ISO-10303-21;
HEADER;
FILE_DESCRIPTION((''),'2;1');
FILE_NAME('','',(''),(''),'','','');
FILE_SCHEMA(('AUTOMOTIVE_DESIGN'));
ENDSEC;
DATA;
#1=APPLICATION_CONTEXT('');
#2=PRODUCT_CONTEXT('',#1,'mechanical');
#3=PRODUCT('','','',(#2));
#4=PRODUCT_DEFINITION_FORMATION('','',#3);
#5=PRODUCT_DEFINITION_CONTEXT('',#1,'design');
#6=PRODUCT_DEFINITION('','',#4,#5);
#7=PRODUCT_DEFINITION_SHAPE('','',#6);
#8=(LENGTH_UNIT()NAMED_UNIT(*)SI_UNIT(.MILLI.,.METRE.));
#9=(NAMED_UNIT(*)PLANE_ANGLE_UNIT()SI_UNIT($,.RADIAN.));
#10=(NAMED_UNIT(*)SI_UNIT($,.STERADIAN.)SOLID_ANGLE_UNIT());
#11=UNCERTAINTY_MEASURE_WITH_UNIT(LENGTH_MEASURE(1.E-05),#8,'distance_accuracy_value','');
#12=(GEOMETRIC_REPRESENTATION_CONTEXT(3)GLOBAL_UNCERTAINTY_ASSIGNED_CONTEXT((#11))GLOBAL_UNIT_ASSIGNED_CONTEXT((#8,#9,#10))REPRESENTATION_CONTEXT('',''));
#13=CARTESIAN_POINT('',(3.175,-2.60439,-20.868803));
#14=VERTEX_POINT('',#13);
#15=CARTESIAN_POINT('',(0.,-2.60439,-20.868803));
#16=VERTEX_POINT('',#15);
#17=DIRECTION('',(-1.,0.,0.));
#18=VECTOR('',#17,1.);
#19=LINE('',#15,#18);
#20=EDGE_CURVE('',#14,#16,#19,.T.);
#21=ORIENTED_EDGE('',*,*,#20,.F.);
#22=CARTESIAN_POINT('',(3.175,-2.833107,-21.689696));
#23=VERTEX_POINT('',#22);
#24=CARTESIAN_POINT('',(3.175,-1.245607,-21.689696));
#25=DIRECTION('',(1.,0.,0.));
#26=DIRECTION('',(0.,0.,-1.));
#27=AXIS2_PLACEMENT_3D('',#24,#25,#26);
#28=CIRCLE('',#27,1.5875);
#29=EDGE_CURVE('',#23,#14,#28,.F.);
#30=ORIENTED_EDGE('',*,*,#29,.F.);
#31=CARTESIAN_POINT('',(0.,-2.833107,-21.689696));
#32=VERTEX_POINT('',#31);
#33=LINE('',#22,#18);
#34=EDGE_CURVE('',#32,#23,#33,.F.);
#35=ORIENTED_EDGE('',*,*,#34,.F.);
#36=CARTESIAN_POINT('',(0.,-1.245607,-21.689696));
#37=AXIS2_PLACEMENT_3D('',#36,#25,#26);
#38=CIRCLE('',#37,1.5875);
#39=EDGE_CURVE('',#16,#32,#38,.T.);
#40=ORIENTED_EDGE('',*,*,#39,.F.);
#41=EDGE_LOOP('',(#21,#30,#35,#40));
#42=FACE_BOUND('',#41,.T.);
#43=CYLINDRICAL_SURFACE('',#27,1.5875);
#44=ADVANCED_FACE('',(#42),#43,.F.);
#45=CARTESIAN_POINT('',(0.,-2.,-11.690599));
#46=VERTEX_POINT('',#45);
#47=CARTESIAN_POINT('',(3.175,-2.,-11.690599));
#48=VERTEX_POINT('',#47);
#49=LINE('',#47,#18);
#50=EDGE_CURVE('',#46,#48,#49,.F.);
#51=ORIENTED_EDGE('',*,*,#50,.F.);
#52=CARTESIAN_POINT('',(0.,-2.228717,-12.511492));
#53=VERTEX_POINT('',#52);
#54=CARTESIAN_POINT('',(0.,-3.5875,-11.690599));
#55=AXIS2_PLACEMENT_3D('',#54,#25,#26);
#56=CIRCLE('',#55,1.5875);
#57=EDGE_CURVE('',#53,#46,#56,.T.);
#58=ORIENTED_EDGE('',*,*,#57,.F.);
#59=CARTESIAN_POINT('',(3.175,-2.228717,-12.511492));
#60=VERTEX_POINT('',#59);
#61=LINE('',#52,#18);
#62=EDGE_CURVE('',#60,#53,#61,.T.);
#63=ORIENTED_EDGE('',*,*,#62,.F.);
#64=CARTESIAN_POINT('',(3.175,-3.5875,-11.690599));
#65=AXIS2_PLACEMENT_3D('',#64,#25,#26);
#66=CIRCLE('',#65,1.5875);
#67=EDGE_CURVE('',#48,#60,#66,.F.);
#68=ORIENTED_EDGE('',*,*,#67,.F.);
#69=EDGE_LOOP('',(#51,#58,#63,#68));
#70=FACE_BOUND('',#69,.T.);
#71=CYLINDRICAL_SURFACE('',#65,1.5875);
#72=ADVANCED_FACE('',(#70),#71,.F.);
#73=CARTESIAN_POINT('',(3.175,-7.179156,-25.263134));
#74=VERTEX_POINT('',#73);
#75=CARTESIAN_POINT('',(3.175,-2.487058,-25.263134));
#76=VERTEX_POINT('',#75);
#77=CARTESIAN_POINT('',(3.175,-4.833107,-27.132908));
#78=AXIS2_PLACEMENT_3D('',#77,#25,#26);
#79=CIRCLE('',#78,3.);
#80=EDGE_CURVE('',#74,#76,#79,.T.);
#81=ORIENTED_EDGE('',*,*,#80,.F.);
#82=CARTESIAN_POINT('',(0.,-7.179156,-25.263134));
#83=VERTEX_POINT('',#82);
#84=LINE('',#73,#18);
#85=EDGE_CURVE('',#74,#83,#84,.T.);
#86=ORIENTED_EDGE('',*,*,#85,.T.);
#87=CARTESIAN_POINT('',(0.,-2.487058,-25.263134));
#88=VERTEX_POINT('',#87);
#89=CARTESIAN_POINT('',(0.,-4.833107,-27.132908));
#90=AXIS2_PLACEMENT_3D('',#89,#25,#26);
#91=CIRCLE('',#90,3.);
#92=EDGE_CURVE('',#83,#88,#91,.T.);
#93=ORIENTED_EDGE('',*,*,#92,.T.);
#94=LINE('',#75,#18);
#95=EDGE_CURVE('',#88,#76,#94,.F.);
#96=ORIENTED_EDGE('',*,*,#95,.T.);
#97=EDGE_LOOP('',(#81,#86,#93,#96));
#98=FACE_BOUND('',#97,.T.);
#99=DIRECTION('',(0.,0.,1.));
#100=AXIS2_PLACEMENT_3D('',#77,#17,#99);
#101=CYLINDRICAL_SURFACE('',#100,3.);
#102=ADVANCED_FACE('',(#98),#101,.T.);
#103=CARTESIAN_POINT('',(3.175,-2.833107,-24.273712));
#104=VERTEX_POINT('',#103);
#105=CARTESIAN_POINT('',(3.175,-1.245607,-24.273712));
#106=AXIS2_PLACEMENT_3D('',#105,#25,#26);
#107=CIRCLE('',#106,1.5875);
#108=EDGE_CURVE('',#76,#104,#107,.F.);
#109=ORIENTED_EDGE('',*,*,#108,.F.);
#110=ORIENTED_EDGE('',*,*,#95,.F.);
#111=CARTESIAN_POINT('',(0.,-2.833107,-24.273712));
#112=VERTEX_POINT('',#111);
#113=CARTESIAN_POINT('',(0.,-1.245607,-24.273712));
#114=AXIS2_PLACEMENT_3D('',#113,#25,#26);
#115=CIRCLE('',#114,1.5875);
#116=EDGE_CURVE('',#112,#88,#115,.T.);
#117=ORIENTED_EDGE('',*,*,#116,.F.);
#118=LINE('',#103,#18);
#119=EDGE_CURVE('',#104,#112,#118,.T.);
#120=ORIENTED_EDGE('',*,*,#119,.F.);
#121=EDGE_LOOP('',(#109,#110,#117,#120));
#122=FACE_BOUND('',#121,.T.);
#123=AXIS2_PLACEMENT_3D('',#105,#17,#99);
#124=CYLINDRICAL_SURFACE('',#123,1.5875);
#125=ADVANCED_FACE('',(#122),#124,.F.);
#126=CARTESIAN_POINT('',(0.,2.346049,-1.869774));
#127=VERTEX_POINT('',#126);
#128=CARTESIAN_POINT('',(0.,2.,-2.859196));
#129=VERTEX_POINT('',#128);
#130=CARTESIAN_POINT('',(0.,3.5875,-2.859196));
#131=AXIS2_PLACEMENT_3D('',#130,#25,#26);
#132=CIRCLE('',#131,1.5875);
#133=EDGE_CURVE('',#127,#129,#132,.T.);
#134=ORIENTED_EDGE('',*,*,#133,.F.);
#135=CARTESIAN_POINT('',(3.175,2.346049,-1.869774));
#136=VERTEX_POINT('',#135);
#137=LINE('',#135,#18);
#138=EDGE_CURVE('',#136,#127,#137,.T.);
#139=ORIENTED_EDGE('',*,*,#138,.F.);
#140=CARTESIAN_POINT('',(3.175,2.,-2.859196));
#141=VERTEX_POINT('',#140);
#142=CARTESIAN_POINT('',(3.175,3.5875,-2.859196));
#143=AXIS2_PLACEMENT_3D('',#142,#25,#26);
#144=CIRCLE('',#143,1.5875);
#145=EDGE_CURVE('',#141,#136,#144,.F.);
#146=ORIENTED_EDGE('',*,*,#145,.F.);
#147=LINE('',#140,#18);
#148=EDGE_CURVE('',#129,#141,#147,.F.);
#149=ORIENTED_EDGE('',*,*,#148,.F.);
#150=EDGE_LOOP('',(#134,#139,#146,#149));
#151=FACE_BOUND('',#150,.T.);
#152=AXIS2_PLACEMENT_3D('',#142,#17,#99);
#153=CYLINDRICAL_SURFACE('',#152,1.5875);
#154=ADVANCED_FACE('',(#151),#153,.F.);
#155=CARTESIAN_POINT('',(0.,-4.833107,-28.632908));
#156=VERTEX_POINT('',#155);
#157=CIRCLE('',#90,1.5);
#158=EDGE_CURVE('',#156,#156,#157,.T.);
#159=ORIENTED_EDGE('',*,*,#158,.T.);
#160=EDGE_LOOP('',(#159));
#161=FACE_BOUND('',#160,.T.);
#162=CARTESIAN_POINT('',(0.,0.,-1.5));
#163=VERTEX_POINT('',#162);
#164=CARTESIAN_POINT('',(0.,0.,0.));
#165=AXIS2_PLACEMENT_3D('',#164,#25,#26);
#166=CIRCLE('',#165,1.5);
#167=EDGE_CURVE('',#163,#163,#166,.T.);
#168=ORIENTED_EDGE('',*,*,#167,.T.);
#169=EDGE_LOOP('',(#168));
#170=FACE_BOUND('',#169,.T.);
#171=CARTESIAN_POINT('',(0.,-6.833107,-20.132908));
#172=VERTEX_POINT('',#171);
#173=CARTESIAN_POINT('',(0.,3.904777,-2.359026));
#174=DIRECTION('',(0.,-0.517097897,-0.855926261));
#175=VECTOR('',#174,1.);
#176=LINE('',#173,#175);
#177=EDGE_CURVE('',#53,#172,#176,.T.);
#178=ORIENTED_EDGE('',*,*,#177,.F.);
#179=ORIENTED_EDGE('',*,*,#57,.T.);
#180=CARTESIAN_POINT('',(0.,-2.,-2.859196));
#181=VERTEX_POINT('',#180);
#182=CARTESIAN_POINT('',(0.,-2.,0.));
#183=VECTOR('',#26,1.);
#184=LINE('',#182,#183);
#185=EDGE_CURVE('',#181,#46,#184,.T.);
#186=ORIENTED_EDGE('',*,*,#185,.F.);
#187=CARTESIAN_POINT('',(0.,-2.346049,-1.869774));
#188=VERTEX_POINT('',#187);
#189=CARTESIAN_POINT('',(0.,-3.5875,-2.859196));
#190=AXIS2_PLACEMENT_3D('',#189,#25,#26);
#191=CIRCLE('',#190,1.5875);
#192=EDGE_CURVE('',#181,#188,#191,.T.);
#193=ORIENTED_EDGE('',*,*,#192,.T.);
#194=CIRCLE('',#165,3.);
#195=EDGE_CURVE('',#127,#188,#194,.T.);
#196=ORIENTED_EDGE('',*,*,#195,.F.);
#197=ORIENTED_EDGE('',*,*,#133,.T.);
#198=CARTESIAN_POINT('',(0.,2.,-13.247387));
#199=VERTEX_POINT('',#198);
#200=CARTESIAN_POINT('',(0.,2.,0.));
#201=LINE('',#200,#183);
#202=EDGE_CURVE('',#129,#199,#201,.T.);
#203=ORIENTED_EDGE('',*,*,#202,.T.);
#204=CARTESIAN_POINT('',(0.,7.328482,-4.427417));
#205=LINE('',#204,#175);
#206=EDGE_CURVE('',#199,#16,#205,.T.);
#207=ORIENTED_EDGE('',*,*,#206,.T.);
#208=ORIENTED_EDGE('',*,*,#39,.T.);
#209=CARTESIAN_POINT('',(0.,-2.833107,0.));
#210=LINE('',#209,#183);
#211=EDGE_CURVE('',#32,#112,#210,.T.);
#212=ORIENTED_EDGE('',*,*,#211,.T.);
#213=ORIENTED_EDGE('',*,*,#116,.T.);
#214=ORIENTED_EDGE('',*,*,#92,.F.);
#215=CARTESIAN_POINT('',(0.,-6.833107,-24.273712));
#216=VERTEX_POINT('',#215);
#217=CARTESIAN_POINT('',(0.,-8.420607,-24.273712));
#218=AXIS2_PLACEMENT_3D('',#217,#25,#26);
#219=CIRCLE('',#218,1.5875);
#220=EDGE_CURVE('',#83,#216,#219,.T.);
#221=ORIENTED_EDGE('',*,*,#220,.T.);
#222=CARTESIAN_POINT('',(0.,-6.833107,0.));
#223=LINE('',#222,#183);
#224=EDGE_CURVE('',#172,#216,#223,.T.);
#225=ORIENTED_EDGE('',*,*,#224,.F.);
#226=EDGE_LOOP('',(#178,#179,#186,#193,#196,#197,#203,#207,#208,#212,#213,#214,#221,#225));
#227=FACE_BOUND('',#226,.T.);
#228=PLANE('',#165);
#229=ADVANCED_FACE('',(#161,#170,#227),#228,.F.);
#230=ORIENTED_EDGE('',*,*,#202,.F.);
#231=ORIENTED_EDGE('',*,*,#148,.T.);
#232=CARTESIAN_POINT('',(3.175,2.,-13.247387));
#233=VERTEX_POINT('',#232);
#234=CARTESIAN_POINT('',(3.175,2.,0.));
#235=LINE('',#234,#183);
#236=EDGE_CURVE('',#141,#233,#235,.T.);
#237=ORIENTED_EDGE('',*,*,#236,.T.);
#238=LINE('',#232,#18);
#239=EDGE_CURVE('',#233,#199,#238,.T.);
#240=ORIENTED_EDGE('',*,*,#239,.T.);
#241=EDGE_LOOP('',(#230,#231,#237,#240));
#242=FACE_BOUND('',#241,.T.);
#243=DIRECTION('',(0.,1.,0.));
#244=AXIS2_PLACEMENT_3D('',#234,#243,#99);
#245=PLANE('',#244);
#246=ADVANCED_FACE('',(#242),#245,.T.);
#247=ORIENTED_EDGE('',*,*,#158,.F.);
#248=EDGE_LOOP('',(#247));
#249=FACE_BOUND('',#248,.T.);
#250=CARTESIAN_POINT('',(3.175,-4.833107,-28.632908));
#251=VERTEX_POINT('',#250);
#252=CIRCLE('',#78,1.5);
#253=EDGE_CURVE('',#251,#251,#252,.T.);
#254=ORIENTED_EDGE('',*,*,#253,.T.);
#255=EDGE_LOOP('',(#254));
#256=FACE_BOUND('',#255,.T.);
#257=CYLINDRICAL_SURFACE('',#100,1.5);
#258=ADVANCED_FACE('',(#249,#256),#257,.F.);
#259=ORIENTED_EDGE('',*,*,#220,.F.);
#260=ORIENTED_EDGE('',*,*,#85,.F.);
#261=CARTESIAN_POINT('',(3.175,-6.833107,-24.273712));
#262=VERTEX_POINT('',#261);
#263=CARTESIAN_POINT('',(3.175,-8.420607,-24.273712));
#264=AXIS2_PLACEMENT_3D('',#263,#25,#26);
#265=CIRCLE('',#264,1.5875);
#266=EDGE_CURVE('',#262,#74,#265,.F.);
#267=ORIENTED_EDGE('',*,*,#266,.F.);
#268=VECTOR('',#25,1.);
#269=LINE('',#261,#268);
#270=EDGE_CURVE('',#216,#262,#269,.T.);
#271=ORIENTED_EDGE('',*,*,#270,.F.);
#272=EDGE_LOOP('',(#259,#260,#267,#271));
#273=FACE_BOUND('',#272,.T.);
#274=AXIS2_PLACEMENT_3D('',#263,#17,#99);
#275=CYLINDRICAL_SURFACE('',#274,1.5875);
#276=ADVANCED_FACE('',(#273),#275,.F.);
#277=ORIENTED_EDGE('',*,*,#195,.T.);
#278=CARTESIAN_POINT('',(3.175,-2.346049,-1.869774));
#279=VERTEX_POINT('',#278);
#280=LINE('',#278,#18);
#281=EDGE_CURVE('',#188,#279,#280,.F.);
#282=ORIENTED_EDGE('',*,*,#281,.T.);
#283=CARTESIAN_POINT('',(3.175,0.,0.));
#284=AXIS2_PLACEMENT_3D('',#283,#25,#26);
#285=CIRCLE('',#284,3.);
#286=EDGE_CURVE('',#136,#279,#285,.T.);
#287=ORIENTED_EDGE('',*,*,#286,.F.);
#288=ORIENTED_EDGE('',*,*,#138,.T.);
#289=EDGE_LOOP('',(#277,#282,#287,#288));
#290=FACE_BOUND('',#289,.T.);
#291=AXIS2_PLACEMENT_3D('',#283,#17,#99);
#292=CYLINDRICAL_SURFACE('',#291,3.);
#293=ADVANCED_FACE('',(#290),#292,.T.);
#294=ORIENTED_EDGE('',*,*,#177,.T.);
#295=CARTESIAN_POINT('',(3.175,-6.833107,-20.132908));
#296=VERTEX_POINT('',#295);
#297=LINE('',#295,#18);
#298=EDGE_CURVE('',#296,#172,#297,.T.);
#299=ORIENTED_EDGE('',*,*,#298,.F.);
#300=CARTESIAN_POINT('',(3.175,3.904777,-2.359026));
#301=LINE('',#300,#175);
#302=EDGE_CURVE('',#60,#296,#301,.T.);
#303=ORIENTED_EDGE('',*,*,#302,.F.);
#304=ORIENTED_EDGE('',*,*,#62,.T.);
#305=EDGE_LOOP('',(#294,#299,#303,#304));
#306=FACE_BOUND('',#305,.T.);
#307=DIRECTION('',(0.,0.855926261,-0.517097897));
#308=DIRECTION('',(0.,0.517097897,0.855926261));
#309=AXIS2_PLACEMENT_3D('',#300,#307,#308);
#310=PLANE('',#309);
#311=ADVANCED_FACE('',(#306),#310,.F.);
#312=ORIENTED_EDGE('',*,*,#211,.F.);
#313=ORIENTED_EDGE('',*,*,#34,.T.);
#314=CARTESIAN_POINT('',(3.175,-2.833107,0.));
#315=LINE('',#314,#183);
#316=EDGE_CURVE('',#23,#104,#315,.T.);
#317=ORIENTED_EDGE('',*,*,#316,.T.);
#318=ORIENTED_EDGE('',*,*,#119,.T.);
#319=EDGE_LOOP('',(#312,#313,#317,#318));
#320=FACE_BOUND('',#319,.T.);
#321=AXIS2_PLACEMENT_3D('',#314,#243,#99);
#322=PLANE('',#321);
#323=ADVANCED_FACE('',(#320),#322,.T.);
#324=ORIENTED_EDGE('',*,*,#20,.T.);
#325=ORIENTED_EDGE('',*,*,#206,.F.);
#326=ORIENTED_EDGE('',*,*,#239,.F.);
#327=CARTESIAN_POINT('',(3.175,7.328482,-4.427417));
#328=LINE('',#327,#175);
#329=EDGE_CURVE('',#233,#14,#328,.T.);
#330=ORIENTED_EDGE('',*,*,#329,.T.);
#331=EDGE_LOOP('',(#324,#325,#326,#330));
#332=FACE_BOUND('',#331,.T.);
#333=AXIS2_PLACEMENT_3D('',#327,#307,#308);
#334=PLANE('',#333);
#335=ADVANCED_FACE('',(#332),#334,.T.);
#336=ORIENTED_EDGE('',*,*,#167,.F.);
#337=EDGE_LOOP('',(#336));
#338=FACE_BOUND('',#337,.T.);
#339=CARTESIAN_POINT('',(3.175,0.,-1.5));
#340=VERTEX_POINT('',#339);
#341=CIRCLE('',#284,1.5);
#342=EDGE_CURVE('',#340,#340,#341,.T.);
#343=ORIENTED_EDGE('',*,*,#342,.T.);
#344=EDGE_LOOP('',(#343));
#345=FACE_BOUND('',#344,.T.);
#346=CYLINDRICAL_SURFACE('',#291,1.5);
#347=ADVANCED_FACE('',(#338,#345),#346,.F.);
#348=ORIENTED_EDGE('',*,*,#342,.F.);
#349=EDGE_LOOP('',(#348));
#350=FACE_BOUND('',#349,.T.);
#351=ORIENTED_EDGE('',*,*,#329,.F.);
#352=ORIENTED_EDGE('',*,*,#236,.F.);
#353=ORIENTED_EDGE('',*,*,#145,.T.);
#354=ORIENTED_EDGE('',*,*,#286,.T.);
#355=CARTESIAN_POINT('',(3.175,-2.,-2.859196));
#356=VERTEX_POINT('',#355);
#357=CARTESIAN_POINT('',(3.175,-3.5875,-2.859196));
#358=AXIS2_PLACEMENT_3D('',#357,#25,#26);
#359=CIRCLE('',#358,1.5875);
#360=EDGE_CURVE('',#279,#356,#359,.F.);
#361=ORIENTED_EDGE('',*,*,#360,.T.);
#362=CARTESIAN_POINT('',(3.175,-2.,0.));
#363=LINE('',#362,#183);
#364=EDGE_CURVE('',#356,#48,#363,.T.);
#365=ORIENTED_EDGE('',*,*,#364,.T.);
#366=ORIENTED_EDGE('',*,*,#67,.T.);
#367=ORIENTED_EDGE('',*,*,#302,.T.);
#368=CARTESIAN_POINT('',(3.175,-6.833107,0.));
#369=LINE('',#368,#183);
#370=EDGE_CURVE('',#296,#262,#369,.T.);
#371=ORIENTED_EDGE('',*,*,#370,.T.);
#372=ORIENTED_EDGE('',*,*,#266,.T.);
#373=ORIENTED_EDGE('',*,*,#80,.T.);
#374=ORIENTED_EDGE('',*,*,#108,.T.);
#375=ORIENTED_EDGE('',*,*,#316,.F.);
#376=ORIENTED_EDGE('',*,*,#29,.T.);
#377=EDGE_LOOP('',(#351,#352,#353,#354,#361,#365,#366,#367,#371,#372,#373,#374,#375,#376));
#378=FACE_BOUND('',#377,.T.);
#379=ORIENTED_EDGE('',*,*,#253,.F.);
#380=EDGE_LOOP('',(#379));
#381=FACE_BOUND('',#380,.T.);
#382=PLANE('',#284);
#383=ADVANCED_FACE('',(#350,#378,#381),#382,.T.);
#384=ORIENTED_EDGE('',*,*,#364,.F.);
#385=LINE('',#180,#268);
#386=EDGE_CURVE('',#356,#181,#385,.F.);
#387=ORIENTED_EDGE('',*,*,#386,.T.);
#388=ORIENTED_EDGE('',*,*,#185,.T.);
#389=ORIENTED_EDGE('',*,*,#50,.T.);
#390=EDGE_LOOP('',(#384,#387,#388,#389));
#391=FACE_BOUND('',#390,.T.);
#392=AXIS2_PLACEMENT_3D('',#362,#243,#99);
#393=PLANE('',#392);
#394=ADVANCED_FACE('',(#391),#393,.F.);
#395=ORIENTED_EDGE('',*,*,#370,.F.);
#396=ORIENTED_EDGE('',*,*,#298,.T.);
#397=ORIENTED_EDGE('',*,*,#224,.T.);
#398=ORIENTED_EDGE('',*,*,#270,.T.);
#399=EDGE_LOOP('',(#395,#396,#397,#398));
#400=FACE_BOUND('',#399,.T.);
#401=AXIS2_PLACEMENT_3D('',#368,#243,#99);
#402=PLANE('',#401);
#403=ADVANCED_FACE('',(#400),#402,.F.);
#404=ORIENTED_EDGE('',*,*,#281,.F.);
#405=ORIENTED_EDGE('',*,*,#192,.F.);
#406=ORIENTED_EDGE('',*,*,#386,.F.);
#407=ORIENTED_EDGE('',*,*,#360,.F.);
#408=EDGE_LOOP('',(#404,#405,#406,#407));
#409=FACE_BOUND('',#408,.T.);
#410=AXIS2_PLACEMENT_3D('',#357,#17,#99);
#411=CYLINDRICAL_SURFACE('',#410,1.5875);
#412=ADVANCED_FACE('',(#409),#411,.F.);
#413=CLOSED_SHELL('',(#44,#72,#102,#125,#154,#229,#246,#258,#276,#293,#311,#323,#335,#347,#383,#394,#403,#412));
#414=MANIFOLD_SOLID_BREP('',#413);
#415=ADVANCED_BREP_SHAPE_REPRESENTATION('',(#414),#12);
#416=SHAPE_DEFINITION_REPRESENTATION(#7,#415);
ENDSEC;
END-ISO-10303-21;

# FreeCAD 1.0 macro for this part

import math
import FreeCAD as App
import Part
import Sketcher

V = App.Vector
Q = App.Units.Quantity


def edges_at(feature, points):
    """Names of the edges that pass closest to the given points."""
    edges = feature.Shape.Edges
    near = lambda p: min(range(len(edges)), key=lambda i: edges[i].distToShape(Part.Vertex(*p))[0])
    return sorted({f"Edge{near(p) + 1}" for p in points})

doc = App.newDocument("Part")
body = doc.addObject("PartDesign::Body", "Body")

sketch1 = doc.addObject("Sketcher::SketchObject", "Sketch")
body.addObject(sketch1)
sketch1.AttachmentSupport = (doc.YZ_Plane, [""])
sketch1.MapMode = "FlatFace"
sketch1.addGeometry([
    Part.LineSegment(V(2, -13.247387, 0), V(2, -2.236068, 0)),
    Part.ArcOfCircle(Part.Circle(V(0, 0, 0), V(0, 0, 1), 3), math.radians(-48.189685), math.radians(228.189685)),
    Part.LineSegment(V(-2, -2.236068, 0), V(-2, -12.132908, 0)),
    Part.LineSegment(V(-2, -12.132908, 0), V(-6.833107, -20.132908, 0)),
    Part.LineSegment(V(-6.833107, -20.132908, 0), V(-6.833107, -24.89684, 0)),
    Part.ArcOfCircle(Part.Circle(V(-4.833107, -27.132908, 0), V(0, 0, 1), 3), math.radians(131.810315), math.radians(408.189685)),
    Part.LineSegment(V(-2.833107, -24.89684, 0), V(-2.833107, -21.247387, 0)),
    Part.LineSegment(V(-2.833107, -21.247387, 0), V(2, -13.247387, 0)),
    Part.Circle(V(-4.833107, -27.132908, 0), V(0, 0, 1), 1.5),
    Part.Circle(V(0, 0, 0), V(0, 0, 1), 1.5),
], False)
sketch1.addConstraint([
    Sketcher.Constraint("Coincident", 0, 2, 1, 1),
    Sketcher.Constraint("Coincident", 1, 2, 2, 1),
    Sketcher.Constraint("Coincident", 2, 2, 3, 1),
    Sketcher.Constraint("Coincident", 3, 2, 4, 1),
    Sketcher.Constraint("Coincident", 4, 2, 5, 1),
    Sketcher.Constraint("Coincident", 5, 2, 6, 1),
    Sketcher.Constraint("Coincident", 6, 2, 7, 1),
    Sketcher.Constraint("Coincident", 7, 2, 0, 1),
    Sketcher.Constraint("Vertical", 0),
    Sketcher.Constraint("Vertical", 2),
    Sketcher.Constraint("Vertical", 4),
    Sketcher.Constraint("Vertical", 6),
    Sketcher.Constraint("Coincident", 1, 3, -1, 1),
    Sketcher.Constraint("Coincident", 9, 3, -1, 1),
    Sketcher.Constraint("Coincident", 8, 3, 5, 3),
    Sketcher.Constraint("Equal", 1, 5),
    Sketcher.Constraint("Equal", 8, 9),
    Sketcher.Constraint("Parallel", 3, 7),
    Sketcher.Constraint("Horizontal", 0, 2, 1, 2),
    Sketcher.Constraint("Horizontal", 4, 2, 5, 2),
    Sketcher.Constraint("Equal", 3, 7),
    Sketcher.Constraint("Diameter", 8, Q("3 mm")),
    Sketcher.Constraint("Radius", 1, Q("3 mm")),
    Sketcher.Constraint("DistanceX", -1, 1, 0, 2, Q("2 mm")),
    Sketcher.Constraint("DistanceY", 5, 3, 2, 2, Q("15 mm")),
    Sketcher.Constraint("DistanceY", 5, 3, 3, 2, Q("7 mm")),
    Sketcher.Constraint("Distance", 3, Q("9.3466 mm")),
    Sketcher.Constraint("DistanceY", 0, 1, 0, 2, Q("11.011319 mm")),
    Sketcher.Constraint("DistanceY", 2, 2, 2, 1, Q("9.89684 mm")),
])
pad1 = doc.addObject("PartDesign::Pad", "Pad")
body.addObject(pad1)
pad1.Profile = sketch1
pad1.Length = 3.175
doc.recompute()

fillet = doc.addObject("PartDesign::Fillet", "Fillet")
body.addObject(fillet)
fillet.Base = (pad1, edges_at(pad1, [
    (1.587, -6.833, -24.897),
    (1.587, -2, -12.133),
    (1.587, -2, -2.236),
    (1.587, 2, -2.236),
    (1.587, -2.833, -21.247),
    (1.587, -2.833, -24.897),
]))
fillet.Radius = 1.5875

doc.recompute()
